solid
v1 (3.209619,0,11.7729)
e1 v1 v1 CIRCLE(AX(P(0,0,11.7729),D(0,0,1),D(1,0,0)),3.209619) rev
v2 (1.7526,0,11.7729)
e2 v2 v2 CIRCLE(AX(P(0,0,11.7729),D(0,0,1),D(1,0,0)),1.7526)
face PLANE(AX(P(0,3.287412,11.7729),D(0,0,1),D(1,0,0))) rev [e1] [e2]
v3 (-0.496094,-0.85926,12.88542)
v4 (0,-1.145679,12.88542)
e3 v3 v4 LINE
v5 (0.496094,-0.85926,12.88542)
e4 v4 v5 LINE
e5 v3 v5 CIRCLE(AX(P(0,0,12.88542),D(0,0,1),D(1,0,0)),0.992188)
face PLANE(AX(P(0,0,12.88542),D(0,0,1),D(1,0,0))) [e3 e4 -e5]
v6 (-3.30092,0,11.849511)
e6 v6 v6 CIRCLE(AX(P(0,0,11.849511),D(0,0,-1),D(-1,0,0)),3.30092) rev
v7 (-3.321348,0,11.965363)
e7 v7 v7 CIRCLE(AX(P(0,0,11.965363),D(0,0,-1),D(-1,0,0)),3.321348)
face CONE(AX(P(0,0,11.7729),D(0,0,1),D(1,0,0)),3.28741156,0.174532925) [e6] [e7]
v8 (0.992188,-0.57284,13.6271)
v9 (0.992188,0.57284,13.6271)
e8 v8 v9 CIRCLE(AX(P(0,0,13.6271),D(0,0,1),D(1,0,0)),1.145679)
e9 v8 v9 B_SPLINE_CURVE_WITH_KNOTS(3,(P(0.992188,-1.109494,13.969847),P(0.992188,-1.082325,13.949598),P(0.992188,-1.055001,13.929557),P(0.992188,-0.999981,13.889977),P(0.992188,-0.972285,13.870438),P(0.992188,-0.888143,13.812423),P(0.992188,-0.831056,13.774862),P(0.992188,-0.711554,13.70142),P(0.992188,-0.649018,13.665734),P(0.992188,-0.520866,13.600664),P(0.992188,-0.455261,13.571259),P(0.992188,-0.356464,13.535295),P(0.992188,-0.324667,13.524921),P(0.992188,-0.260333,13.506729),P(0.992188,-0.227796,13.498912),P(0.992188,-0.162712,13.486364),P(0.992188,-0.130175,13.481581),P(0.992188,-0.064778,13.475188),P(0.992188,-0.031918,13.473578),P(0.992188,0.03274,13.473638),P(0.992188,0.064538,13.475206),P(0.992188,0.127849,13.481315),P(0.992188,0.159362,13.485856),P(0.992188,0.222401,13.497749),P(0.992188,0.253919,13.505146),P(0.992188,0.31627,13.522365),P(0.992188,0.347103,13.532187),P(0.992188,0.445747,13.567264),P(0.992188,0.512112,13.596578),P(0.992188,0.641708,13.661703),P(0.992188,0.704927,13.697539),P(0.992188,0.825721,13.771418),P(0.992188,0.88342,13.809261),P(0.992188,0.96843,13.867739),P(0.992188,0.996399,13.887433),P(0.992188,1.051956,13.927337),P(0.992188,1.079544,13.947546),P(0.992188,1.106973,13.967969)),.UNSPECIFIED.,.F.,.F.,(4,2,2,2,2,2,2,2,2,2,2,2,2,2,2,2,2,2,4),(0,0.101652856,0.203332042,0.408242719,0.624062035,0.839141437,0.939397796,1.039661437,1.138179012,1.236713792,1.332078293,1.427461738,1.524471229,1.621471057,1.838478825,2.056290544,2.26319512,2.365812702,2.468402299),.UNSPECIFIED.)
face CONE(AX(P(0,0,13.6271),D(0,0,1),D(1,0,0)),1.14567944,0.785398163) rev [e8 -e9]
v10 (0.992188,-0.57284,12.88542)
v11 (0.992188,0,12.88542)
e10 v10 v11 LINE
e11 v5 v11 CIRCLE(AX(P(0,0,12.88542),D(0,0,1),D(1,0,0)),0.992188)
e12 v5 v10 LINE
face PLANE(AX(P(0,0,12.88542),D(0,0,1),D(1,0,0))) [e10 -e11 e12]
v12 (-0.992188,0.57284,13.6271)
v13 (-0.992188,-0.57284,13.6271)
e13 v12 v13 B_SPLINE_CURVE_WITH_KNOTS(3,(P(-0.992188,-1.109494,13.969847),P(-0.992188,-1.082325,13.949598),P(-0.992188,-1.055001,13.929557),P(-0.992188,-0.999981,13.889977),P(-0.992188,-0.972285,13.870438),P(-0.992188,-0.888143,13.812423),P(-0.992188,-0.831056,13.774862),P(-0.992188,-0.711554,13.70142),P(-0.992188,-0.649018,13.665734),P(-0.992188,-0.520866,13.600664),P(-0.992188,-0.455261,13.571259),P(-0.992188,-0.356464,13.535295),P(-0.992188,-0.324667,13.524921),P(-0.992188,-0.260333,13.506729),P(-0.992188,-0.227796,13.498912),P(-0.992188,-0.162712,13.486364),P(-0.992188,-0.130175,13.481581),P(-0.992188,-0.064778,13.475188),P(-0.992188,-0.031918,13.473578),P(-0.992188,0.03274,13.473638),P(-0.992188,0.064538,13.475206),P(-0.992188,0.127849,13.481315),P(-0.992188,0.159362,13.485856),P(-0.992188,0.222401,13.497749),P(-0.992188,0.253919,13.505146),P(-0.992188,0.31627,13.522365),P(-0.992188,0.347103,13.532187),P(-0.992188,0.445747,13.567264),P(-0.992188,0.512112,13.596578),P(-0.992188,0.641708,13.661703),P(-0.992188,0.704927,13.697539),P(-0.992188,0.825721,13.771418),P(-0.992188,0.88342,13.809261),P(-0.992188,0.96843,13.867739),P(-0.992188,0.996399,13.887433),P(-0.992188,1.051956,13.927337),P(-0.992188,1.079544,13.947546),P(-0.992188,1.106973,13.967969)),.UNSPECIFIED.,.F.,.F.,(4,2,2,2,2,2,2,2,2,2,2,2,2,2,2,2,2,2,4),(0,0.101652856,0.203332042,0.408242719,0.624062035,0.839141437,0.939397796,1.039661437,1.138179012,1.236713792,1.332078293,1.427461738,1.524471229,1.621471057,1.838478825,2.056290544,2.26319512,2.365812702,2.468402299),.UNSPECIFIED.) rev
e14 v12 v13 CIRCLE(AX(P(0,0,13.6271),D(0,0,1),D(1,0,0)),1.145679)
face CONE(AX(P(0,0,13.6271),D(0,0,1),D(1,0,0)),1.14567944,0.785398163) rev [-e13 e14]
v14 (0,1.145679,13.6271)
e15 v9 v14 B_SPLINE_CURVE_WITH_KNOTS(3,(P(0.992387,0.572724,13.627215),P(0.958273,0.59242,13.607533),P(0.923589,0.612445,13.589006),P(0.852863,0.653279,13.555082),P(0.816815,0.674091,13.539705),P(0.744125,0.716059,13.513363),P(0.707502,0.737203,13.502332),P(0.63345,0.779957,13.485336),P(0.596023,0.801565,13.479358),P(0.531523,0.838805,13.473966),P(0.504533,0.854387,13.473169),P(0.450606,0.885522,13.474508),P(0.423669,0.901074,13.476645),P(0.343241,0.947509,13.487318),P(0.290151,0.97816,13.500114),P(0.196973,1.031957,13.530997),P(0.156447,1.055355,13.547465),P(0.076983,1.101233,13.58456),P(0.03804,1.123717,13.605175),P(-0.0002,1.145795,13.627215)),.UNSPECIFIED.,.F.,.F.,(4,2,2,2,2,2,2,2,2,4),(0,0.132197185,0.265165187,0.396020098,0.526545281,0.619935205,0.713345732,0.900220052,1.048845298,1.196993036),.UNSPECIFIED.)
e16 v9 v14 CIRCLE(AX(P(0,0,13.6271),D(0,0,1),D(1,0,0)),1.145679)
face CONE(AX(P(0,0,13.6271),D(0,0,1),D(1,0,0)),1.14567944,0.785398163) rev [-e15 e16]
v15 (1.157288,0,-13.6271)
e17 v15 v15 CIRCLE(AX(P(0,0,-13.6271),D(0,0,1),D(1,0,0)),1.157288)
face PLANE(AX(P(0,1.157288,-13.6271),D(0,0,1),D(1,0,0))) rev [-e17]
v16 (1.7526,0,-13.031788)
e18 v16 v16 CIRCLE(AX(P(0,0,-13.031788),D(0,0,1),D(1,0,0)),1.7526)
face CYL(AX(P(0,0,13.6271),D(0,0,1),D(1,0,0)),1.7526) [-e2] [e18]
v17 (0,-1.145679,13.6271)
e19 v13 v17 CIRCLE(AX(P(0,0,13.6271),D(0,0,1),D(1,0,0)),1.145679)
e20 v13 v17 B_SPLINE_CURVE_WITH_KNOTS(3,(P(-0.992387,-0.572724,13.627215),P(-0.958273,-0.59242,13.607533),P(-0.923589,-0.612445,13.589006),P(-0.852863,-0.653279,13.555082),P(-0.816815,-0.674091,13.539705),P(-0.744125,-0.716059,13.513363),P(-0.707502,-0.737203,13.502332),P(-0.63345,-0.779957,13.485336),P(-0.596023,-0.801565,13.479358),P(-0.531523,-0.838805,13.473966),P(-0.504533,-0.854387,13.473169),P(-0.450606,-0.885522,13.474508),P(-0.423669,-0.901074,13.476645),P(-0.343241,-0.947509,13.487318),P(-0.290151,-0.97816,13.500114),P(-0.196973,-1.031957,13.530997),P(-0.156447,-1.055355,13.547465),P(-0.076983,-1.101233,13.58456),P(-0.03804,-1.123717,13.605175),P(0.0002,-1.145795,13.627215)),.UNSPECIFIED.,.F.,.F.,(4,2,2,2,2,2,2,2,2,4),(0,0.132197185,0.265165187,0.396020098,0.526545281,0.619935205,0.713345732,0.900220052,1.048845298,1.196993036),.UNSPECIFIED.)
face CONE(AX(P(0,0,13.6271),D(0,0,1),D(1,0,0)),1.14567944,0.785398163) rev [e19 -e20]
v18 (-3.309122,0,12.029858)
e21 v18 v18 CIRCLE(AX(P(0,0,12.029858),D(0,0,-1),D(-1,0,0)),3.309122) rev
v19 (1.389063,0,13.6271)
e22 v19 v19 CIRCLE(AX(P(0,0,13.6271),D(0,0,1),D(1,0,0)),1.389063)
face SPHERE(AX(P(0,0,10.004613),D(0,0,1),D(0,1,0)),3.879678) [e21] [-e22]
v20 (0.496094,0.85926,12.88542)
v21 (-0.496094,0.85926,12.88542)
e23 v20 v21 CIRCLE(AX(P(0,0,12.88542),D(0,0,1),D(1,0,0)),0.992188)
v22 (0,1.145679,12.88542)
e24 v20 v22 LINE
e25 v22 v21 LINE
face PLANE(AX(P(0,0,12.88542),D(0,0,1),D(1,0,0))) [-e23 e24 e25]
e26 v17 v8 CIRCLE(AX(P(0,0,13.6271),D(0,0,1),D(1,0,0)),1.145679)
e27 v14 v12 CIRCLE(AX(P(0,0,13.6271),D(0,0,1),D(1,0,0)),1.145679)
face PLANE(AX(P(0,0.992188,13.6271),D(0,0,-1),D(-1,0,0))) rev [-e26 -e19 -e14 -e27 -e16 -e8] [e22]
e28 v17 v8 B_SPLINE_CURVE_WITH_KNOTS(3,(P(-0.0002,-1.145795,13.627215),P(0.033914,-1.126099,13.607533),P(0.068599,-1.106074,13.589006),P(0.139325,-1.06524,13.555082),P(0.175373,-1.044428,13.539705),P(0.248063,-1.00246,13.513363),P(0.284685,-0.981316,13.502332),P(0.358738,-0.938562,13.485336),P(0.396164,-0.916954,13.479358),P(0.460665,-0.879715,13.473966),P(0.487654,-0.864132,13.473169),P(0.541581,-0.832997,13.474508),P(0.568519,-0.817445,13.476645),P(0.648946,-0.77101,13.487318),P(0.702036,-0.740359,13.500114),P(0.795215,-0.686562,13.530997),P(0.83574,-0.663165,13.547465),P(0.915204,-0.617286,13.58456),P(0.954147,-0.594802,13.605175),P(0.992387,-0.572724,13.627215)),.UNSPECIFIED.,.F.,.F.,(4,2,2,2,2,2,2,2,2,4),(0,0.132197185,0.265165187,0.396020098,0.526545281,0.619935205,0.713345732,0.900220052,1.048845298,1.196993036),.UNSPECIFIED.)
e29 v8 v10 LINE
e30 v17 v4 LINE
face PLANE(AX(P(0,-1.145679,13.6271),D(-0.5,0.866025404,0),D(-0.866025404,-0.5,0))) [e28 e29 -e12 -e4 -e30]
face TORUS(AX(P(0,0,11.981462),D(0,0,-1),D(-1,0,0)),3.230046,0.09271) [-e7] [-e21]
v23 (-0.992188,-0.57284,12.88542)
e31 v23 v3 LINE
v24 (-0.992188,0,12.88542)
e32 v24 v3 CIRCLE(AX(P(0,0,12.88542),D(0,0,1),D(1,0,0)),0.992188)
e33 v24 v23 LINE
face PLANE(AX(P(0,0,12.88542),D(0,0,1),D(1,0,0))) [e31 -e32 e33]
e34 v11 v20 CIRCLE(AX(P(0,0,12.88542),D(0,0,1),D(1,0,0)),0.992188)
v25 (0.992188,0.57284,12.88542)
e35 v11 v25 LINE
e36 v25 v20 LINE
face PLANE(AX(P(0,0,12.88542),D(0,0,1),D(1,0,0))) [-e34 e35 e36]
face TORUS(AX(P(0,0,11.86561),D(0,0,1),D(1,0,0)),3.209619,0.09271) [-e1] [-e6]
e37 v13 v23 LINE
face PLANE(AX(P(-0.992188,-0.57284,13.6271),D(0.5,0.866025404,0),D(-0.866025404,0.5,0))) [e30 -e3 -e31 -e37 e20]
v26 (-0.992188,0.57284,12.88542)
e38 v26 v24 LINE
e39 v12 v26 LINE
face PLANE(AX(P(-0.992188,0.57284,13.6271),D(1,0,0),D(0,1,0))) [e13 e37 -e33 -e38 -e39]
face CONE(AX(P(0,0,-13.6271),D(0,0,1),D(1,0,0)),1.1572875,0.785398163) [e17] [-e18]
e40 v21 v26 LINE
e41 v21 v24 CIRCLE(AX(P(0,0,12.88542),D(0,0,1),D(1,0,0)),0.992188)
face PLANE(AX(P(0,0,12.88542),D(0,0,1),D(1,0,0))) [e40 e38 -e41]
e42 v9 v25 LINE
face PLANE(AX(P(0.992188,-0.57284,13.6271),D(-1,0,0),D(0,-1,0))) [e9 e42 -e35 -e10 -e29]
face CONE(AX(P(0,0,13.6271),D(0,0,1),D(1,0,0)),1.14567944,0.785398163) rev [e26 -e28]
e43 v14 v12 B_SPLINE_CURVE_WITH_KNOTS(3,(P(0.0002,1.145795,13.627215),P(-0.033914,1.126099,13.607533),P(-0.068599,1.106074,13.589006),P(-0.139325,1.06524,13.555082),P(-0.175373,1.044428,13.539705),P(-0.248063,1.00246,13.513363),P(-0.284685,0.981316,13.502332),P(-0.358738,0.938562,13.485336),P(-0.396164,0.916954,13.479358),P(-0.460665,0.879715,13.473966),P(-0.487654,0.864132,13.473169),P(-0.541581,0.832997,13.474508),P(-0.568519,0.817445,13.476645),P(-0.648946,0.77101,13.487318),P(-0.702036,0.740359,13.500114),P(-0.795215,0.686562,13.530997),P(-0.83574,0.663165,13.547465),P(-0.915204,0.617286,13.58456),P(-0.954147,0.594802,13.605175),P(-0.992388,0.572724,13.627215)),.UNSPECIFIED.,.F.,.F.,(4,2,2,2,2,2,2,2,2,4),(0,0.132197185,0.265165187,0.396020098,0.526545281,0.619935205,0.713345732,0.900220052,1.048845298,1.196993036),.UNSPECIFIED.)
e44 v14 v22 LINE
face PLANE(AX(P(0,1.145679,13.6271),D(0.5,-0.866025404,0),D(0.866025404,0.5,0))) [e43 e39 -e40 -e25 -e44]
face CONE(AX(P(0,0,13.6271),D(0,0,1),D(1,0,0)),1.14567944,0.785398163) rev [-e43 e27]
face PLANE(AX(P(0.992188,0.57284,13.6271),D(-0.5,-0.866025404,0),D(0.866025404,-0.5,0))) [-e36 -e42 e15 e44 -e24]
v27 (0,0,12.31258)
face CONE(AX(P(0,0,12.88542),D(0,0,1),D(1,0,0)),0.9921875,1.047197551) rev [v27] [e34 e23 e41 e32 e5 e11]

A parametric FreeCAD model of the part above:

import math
import FreeCAD as App
import Part
import Sketcher

V = App.Vector
Q = App.Units.Quantity


def edges_at(feature, points):
    """Names of the edges that pass closest to the given points."""
    edges = feature.Shape.Edges
    near = lambda p: min(range(len(edges)), key=lambda i: edges[i].distToShape(Part.Vertex(*p))[0])
    return sorted({f"Edge{near(p) + 1}" for p in points})


def faces_at(feature, points):
    """Names of the faces that lie closest to the given points."""
    faces = feature.Shape.Faces
    near = lambda p: min(range(len(faces)), key=lambda i: faces[i].distToShape(Part.Vertex(*p))[0])
    return sorted({f"Face{near(p) + 1}" for p in points})


def add_polygon(sketch, points):
    """Adds a closed chain of lines whose ends are joined by coincident constraints."""
    first, n = sketch.GeometryCount, len(points)
    for a, b in zip(points, points[1:] + points[:1]):
        sketch.addGeometry(Part.LineSegment(App.Vector(*a, 0), App.Vector(*b, 0)), False)
    for i in range(n):
        sketch.addConstraint(Sketcher.Constraint("Coincident", first + i, 2, first + (i + 1) % n, 1))

doc = App.newDocument("Part")
body = doc.addObject("PartDesign::Body", "Body")

# Sketch on YZ plane
sketch1 = body.newObject("Sketcher::SketchObject", "Sketch")
sketch1.AttachmentSupport = (doc.getObject("YZ_Plane"), [""])
sketch1.MapMode = "FlatFace"
sketch1.addGeometry(Part.LineSegment(V(1.39, 13.63, 0), V(0.99, 13.63, 0)), False)
sketch1.addGeometry(Part.LineSegment(V(0.99, 13.63, 0), V(0.99, 12.89, 0)), False)
sketch1.addGeometry(Part.LineSegment(V(0.99, 12.89, 0), V(0, 12.31, 0)), False)
sketch1.addGeometry(Part.LineSegment(V(0, 12.31, 0), V(0, -13.63, 0)), False)
sketch1.addGeometry(Part.LineSegment(V(0, -13.63, 0), V(1.16, -13.63, 0)), False)
sketch1.addGeometry(Part.LineSegment(V(1.16, -13.63, 0), V(1.75, -13.03, 0)), False)
sketch1.addGeometry(Part.LineSegment(V(1.75, -13.03, 0), V(1.75, 11.77, 0)), False)
sketch1.addGeometry(Part.LineSegment(V(1.75, 11.77, 0), V(3.29, 11.77, 0)), False)
sketch1.addGeometry(Part.LineSegment(V(3.29, 11.77, 0), V(3.33, 12, 0)), False)
sketch1.addGeometry(Part.ArcOfCircle(Part.Circle(V(0, 10, 0), V(0, 0, 1), 3.88), math.radians(31), math.radians(69)), False)
sketch1.addConstraint(Sketcher.Constraint("Coincident", 0, 2, 1, 1))
sketch1.addConstraint(Sketcher.Constraint("Coincident", 1, 2, 2, 1))
sketch1.addConstraint(Sketcher.Constraint("Coincident", 2, 2, 3, 1))
sketch1.addConstraint(Sketcher.Constraint("Coincident", 3, 2, 4, 1))
sketch1.addConstraint(Sketcher.Constraint("Coincident", 4, 2, 5, 1))
sketch1.addConstraint(Sketcher.Constraint("Coincident", 5, 2, 6, 1))
sketch1.addConstraint(Sketcher.Constraint("Coincident", 6, 2, 7, 1))
sketch1.addConstraint(Sketcher.Constraint("Coincident", 7, 2, 8, 1))
sketch1.addConstraint(Sketcher.Constraint("Coincident", 8, 2, 9, 1))
sketch1.addConstraint(Sketcher.Constraint("Coincident", 9, 2, 0, 1))
sketch1.addConstraint(Sketcher.Constraint("Horizontal", 0))
sketch1.addConstraint(Sketcher.Constraint("Vertical", 1))
sketch1.addConstraint(Sketcher.Constraint("Vertical", 3))
sketch1.addConstraint(Sketcher.Constraint("Horizontal", 4))
sketch1.addConstraint(Sketcher.Constraint("Vertical", 6))
sketch1.addConstraint(Sketcher.Constraint("Horizontal", 7))
sketch1.addConstraint(Sketcher.Constraint("PointOnObject", 9, 3, -2))
sketch1.addConstraint(Sketcher.Constraint("PointOnObject", 2, 2, -2))
sketch1.addConstraint(Sketcher.Constraint("Angle", 2, Q("-150 deg")))
sketch1.addConstraint(Sketcher.Constraint("Angle", 5, Q("45 deg")))
sketch1.addConstraint(Sketcher.Constraint("Angle", 8, Q("80 deg")))
sketch1.addConstraint(Sketcher.Constraint("DistanceX", 0, 2, 0, 1, Q("0.015625 in")))
sketch1.addConstraint(Sketcher.Constraint("DistanceY", 1, 2, 1, 1, Q("0.0292 in")))
sketch1.addConstraint(Sketcher.Constraint("DistanceX", -1, 1, 5, 2, Q("0.069 in")))
sketch1.addConstraint(Sketcher.Constraint("DistanceX", -1, 1, 8, 2, Q("0.131 in")))
sketch1.addConstraint(Sketcher.Constraint("Radius", 9, 3.879678))
sketch1.addConstraint(Sketcher.Constraint("DistanceY", 3, 2, 0, 2, Q("1.073 in")))
sketch1.addConstraint(Sketcher.Constraint("DistanceY", 6, 2, 0, 2, Q("0.073 in")))
sketch1.addConstraint(Sketcher.Constraint("DistanceY", -1, 1, 0, 2, Q("0.5365 in")))
sketch1.addConstraint(Sketcher.Constraint("DistanceX", 1, 2, 4, 2, Q("0.0065 in")))
sketch1.addConstraint(Sketcher.Constraint("Distance", 5, 0.841899))
revolution = body.newObject("PartDesign::Revolution", "Revolution")
revolution.Profile = sketch1
revolution.ReferenceAxis = (sketch1, ["V_Axis"])
revolution.Angle = 360

# Sketch on XY plane
sketch2 = body.newObject("Sketcher::SketchObject", "Sketch001")
sketch2.AttachmentSupport = (doc.getObject("XY_Plane"), [""])
sketch2.MapMode = "FlatFace"
sketch2.AttachmentOffset = App.Placement(V(0, 0, 0.5073 * 25.4), App.Rotation())
add_polygon(sketch2, [(0, 1.1), (-1, 0.6), (-1, -0.6), (0, -1.1), (1, -0.6), (1, 0.6)])  # lines 0-5
sketch2.addConstraint(Sketcher.Constraint("Vertical", 1))
sketch2.addConstraint(Sketcher.Constraint("Vertical", 4))
sketch2.addConstraint(Sketcher.Constraint("Symmetric", 0, 2, 3, 2, -1, 1))
sketch2.addConstraint(Sketcher.Constraint("Symmetric", 2, 2, 5, 2, -1, 1))
sketch2.addConstraint(Sketcher.Constraint("PointOnObject", 2, 2, -2))
sketch2.addConstraint(Sketcher.Constraint("Parallel", 2, 5))
sketch2.addConstraint(Sketcher.Constraint("Horizontal", 1, 2, 3, 2))
sketch2.addConstraint(Sketcher.Constraint("Angle", 0, Q("-150 deg")))
sketch2.addConstraint(Sketcher.Constraint("DistanceX", 1, 2, 3, 2, Q("0.078125 in")))
sketch2.addConstraint(Sketcher.Constraint("DistanceY", 1, 2, 1, 1, 1.145679))
pocket1 = body.newObject("PartDesign::Pocket", "Pocket")
pocket1.Profile = sketch2
pocket1.Type = "ThroughAll"
pocket1.Reversed = True
body2 = doc.addObject("PartDesign::Body", "Body001")

# Sketch on XY plane
sketch3 = body2.newObject("Sketcher::SketchObject", "Sketch002")
sketch3.AttachmentSupport = (doc.getObject("XY_Plane001"), [""])
sketch3.MapMode = "FlatFace"
sketch3.AttachmentOffset = App.Placement(V(0, 0, 0.5365 * 25.4), App.Rotation())
sketch3.addGeometry(Part.Circle(V(0, 0, 0), V(0, 0, 1), 1.1), False)
sketch3.addConstraint(Sketcher.Constraint("Coincident", 0, 3, -1, 1))
sketch3.addConstraint(Sketcher.Constraint("Diameter", 0, 2.291359))
pad1 = body2.newObject("PartDesign::Pad", "Pad")
pad1.Profile = sketch3
pad1.Length = Q("0.0292 in")
pad1.Reversed = True
doc.recompute()

datumplane = body2.newObject("PartDesign::Plane", "DatumPlane")
datumplane.AttachmentSupport = (doc.getObject("XY_Plane001"), [""])
datumplane.MapMode = "FlatFace"
datumplane.AttachmentOffset = App.Placement(V(0, 0, 0.5365 * 25.4), App.Rotation())
draft = body2.newObject("PartDesign::Draft", "Draft")
draft.Base = (pad1, faces_at(pad1, [(-1.146, 0, 13.256)]))
draft.NeutralPlane = (datumplane, [""])
draft.Angle = 45
draft.Reversed = True
doc.recompute()

boolean = body.newObject("PartDesign::Boolean", "Boolean")
boolean.Type = "Cut"
boolean.addObjects([body2])
doc.recompute()

fillet = body.newObject("PartDesign::Fillet", "Fillet")
fillet.Base = (boolean, edges_at(boolean, [(0, -3.287, 11.773), (0, -3.327, 12)]))
fillet.Radius = 0.09271

doc.recompute()
